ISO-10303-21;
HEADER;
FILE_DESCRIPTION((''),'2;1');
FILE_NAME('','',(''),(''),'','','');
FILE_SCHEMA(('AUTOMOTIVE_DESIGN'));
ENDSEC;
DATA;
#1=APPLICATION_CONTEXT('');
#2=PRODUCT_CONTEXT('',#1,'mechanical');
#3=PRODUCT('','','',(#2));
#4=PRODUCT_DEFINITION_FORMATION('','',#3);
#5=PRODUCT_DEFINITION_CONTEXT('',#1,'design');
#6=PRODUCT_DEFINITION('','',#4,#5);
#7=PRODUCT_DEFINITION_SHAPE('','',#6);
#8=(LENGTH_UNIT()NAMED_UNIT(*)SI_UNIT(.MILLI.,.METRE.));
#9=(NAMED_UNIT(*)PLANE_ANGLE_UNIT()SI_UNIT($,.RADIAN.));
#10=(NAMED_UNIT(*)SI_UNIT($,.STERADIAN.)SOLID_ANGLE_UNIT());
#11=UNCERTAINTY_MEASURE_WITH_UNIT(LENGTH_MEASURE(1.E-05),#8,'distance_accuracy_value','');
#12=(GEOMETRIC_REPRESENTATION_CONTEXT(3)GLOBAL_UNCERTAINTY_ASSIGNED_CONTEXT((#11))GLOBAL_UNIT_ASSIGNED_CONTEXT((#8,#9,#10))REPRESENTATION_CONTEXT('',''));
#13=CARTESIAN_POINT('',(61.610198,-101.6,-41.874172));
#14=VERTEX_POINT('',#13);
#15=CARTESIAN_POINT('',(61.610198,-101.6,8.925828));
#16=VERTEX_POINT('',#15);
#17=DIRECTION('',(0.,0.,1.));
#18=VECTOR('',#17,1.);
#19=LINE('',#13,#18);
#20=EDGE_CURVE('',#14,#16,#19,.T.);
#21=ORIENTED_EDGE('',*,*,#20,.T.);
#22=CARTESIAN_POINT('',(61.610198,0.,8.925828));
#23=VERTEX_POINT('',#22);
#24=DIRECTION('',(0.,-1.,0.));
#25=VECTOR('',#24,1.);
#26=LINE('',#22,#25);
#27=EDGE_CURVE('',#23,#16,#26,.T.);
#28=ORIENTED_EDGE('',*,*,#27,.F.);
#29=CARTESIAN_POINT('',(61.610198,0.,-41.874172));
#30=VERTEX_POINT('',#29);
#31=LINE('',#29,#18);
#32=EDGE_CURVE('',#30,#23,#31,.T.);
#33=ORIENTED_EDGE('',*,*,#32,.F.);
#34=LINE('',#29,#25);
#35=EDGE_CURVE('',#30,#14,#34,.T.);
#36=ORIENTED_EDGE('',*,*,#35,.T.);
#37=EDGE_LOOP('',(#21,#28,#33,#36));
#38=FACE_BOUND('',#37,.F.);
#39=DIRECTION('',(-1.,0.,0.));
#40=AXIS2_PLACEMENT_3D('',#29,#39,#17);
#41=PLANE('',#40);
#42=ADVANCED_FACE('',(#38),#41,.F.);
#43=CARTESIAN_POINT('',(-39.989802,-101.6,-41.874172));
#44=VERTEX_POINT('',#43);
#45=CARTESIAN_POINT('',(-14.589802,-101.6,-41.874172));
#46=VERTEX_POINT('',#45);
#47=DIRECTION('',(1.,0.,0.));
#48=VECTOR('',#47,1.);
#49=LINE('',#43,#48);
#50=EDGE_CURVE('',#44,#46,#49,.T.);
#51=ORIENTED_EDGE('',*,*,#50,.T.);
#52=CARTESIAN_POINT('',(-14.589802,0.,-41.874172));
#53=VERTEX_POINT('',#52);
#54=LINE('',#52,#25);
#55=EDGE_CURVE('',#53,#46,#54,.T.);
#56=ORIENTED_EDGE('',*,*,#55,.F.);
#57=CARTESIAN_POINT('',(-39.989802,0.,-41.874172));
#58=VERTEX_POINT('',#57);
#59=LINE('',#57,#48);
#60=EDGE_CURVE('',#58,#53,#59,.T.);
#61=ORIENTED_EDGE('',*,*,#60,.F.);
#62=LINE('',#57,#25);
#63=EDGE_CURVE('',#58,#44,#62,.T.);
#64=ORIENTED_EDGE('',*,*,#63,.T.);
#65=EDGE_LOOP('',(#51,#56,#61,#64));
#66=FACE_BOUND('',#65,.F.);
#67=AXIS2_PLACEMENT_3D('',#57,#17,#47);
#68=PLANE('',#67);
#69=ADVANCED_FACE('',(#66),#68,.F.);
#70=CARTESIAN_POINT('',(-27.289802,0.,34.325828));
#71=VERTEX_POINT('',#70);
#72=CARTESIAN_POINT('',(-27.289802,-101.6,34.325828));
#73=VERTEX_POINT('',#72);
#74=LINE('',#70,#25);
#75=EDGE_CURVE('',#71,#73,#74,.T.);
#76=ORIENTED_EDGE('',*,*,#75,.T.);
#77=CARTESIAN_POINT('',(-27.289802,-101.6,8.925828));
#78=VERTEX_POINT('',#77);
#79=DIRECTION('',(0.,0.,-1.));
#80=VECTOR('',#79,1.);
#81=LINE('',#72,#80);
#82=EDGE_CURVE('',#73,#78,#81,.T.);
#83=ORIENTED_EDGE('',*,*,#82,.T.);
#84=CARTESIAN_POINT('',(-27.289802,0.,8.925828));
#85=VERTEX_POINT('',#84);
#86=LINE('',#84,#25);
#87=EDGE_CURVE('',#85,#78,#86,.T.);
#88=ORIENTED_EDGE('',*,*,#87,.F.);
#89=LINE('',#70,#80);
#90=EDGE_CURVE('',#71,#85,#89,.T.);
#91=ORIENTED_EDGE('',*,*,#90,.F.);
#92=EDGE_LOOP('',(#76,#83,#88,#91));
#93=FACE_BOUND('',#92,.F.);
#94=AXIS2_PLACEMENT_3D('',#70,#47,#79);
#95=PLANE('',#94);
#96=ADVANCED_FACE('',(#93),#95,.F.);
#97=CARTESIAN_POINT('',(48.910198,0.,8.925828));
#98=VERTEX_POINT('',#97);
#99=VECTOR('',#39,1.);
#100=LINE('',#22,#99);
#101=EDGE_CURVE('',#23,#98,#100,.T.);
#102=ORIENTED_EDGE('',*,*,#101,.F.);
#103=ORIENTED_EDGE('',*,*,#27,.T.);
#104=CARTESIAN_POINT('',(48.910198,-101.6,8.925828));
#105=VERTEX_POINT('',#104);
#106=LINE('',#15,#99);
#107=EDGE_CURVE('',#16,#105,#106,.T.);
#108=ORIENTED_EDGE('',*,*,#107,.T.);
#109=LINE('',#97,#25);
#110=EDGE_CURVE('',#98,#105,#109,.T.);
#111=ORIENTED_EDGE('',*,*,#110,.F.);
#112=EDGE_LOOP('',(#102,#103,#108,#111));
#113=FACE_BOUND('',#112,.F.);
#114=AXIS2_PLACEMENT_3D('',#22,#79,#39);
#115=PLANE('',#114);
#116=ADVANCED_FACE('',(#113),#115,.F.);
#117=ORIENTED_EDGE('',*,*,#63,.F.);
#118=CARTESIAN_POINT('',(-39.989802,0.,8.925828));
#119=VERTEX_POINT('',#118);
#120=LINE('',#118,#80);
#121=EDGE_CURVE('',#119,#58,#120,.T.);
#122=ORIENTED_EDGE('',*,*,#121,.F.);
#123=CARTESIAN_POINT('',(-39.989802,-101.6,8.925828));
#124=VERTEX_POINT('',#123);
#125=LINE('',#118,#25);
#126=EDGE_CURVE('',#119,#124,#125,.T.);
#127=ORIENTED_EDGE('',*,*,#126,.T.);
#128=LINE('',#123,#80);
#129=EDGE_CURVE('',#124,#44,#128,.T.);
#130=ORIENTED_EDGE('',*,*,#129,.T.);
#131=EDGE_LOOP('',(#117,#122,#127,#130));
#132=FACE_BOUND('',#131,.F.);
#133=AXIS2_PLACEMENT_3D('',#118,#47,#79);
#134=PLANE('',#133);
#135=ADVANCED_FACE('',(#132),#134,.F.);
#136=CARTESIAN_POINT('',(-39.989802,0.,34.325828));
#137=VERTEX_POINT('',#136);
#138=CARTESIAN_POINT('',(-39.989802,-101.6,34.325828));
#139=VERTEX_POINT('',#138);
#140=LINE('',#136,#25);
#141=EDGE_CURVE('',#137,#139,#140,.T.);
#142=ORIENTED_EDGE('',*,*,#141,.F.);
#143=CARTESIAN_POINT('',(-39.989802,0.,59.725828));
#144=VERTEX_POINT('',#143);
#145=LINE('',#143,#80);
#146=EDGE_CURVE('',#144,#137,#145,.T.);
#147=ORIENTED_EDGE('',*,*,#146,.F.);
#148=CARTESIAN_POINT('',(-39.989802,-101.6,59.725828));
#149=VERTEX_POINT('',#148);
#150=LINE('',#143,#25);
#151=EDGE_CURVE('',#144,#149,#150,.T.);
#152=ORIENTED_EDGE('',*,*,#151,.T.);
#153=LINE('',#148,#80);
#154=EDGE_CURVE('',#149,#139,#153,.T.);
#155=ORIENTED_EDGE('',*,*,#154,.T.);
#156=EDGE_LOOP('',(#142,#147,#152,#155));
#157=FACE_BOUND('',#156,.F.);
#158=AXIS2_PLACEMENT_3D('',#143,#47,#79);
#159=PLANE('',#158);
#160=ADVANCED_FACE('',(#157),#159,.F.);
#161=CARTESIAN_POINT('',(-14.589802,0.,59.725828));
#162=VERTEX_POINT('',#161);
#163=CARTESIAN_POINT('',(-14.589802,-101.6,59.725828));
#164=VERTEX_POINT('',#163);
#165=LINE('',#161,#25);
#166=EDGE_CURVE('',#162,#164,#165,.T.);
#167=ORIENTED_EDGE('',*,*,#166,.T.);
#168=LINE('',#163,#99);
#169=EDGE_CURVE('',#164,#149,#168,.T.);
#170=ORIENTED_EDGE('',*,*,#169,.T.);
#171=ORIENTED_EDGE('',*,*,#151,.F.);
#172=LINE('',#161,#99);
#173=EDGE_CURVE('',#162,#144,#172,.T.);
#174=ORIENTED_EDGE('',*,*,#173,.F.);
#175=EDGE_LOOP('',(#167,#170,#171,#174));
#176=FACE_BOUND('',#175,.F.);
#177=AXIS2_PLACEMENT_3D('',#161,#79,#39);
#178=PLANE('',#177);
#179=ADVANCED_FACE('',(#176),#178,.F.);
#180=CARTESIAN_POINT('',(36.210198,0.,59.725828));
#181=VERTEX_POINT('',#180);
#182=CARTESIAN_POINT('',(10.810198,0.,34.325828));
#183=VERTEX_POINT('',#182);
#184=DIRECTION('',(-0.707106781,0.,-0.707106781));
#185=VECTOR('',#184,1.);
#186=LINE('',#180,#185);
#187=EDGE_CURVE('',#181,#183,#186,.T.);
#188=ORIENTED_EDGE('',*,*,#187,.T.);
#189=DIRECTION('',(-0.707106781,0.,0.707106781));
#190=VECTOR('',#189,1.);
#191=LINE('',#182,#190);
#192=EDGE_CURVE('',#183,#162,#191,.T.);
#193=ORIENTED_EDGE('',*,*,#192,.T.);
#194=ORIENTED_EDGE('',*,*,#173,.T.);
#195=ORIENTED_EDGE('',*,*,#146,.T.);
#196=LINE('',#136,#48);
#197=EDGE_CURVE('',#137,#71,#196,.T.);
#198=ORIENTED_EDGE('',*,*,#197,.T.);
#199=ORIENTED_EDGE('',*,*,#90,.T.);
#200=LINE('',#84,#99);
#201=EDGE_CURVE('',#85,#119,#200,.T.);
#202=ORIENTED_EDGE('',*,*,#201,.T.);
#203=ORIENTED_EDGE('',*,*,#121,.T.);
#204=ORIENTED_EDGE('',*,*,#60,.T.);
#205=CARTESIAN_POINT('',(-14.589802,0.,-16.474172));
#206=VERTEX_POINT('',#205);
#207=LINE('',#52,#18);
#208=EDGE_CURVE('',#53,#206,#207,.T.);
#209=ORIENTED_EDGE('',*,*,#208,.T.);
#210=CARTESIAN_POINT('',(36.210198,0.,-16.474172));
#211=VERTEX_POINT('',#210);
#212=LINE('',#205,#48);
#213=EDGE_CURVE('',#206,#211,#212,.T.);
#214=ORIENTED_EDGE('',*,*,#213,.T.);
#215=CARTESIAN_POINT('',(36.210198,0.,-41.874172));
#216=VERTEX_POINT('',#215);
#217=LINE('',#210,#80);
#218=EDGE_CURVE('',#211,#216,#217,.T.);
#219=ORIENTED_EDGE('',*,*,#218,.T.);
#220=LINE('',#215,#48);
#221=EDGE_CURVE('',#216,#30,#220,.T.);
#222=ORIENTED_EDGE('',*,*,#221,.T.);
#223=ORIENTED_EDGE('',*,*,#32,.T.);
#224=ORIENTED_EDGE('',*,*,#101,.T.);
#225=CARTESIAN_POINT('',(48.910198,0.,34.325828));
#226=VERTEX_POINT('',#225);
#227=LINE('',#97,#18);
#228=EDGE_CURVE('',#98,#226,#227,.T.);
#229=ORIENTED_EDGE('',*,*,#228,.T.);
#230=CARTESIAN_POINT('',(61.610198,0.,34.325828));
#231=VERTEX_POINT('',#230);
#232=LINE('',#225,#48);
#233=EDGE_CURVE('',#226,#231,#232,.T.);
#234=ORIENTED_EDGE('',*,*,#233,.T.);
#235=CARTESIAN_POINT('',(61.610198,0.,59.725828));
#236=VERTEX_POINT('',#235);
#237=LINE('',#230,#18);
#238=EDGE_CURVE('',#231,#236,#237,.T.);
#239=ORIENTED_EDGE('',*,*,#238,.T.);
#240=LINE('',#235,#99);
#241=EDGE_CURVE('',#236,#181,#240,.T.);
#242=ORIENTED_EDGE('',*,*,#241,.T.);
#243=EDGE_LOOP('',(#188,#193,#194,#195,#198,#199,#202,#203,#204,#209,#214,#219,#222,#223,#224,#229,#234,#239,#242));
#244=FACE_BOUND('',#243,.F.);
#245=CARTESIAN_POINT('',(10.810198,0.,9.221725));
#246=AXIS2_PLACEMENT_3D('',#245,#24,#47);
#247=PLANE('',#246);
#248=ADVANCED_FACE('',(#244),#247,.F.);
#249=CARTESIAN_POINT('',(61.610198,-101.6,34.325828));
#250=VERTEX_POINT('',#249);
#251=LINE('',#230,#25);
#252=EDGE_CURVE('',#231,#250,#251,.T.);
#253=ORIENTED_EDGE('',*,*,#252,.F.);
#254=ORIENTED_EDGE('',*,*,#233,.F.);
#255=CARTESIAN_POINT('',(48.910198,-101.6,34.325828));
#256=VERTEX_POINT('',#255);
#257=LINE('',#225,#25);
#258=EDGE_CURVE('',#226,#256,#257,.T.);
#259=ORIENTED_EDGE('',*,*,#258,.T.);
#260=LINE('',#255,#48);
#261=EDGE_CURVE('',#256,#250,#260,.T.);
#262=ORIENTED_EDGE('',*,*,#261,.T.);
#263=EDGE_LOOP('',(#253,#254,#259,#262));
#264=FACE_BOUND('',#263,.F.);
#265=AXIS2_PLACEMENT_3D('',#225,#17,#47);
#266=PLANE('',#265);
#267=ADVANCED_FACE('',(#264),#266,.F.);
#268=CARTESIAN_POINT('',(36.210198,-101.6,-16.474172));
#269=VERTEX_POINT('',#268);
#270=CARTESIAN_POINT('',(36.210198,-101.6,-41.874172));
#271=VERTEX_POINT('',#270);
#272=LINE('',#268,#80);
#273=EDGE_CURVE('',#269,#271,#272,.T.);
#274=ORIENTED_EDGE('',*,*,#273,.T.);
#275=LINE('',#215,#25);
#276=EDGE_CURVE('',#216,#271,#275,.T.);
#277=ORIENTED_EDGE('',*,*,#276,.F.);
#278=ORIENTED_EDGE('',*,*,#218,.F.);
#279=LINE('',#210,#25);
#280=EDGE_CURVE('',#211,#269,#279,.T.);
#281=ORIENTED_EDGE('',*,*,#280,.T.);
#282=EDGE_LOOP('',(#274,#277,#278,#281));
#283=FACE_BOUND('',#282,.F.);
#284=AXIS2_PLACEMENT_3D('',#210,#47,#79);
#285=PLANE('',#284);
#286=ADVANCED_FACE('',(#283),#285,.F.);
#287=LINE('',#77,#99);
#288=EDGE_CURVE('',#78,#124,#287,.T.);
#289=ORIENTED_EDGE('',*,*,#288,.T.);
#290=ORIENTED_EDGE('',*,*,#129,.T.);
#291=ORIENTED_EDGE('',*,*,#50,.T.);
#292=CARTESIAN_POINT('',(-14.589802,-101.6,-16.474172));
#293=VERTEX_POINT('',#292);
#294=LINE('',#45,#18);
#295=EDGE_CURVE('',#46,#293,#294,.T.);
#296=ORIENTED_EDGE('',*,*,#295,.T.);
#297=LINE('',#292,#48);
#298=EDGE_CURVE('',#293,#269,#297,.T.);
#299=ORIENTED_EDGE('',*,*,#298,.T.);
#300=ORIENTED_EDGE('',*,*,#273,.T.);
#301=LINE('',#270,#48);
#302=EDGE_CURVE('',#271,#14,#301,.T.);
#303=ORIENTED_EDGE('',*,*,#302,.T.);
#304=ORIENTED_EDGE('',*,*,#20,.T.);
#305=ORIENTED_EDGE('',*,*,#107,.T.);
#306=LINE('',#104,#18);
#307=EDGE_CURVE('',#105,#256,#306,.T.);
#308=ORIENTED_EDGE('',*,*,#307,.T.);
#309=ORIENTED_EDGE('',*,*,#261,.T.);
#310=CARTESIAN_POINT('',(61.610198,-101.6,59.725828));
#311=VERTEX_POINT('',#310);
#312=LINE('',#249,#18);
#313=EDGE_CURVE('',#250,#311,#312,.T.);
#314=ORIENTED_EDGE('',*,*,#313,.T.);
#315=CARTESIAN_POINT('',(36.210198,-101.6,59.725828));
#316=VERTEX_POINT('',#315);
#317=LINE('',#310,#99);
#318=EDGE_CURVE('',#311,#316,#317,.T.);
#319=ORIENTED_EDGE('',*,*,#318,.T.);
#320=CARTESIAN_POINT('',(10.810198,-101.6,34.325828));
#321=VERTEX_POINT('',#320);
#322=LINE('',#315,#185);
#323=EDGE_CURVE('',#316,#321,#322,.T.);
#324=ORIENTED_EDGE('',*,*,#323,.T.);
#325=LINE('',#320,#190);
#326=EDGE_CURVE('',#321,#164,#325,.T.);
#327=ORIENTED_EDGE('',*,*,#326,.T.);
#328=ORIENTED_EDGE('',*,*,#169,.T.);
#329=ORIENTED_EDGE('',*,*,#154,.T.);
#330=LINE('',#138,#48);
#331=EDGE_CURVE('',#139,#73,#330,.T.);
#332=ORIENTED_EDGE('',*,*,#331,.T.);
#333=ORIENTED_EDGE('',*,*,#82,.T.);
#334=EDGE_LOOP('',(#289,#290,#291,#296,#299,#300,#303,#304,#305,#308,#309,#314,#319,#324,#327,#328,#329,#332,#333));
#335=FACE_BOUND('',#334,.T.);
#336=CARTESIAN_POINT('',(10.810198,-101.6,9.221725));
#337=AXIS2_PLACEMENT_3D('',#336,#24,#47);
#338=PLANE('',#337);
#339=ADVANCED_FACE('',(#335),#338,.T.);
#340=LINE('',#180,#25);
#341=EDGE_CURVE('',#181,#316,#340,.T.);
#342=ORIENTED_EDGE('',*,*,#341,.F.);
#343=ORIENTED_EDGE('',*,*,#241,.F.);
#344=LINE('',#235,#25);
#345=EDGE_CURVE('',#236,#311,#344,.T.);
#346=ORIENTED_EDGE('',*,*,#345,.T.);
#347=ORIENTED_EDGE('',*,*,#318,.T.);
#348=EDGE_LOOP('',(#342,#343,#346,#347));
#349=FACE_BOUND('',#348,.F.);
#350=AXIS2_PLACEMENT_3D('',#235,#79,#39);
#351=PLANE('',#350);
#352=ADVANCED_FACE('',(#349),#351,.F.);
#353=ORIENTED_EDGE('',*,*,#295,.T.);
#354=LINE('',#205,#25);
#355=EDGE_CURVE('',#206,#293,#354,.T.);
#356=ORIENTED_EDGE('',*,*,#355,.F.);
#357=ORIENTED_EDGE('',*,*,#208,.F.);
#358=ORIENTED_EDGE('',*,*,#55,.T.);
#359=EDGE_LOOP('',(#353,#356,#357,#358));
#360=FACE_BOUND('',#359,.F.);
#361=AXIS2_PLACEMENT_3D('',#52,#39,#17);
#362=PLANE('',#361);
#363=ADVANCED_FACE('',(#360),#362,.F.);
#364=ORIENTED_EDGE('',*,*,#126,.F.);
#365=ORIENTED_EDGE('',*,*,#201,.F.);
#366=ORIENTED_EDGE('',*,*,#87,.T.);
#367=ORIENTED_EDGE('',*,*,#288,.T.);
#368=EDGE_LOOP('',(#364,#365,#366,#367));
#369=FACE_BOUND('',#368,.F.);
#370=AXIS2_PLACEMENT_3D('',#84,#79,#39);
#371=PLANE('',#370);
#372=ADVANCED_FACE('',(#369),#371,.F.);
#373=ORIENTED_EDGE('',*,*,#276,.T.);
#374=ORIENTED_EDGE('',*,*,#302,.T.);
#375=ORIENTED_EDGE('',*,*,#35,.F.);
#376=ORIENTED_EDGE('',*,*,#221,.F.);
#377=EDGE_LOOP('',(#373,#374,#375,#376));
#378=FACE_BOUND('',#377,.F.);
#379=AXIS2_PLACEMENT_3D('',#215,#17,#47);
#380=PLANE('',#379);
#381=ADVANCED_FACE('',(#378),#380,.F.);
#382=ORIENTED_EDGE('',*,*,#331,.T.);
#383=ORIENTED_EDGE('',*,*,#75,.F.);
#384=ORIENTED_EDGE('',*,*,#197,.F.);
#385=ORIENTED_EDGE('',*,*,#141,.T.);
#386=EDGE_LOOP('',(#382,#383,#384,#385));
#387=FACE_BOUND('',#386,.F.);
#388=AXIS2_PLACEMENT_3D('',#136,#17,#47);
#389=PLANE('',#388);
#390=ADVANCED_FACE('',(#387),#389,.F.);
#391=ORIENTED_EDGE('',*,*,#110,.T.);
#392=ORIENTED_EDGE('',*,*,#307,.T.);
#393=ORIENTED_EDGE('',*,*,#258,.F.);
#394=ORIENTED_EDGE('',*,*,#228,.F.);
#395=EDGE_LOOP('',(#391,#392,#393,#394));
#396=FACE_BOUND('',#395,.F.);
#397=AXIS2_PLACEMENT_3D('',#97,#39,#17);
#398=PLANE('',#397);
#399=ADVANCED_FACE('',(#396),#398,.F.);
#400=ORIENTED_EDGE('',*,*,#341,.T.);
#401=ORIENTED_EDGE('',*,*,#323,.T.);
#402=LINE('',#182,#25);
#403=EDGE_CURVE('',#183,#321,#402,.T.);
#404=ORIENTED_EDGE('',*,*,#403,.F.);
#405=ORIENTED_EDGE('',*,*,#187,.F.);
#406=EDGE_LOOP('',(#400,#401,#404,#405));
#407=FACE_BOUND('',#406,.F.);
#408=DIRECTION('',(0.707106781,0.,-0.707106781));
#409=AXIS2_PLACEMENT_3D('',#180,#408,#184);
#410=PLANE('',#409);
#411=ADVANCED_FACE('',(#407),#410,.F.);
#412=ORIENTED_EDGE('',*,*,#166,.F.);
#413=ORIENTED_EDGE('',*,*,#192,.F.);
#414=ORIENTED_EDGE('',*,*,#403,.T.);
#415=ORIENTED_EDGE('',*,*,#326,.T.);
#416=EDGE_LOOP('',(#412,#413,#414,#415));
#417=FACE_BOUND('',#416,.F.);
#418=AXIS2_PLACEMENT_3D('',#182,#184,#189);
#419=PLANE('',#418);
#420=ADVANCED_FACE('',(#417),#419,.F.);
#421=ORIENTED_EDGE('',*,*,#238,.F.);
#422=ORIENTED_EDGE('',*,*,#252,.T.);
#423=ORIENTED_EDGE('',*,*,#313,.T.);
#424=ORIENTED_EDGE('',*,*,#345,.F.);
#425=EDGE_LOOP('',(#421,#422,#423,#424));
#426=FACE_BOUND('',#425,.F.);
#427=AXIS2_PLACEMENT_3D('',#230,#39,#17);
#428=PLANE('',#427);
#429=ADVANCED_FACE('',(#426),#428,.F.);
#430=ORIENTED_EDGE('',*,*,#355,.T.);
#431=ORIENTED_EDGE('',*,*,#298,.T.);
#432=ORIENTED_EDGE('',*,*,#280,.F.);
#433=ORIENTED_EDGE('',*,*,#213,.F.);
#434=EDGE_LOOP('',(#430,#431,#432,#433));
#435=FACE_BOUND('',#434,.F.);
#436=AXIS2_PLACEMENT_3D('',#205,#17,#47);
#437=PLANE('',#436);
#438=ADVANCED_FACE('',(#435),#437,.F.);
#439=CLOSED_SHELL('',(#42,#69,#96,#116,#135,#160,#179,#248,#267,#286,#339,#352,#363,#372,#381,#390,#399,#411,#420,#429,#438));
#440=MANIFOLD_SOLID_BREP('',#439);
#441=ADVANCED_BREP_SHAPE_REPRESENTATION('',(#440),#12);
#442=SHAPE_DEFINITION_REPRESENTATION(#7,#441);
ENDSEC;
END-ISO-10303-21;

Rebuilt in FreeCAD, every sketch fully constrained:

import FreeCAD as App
import Part
import Sketcher

V = App.Vector
Q = App.Units.Quantity


def add_polygon(sketch, points):
    """Adds a closed chain of lines whose ends are joined by coincident constraints."""
    first, n = sketch.GeometryCount, len(points)
    for a, b in zip(points, points[1:] + points[:1]):
        sketch.addGeometry(Part.LineSegment(App.Vector(*a, 0), App.Vector(*b, 0)), False)
    for i in range(n):
        sketch.addConstraint(Sketcher.Constraint("Coincident", first + i, 2, first + (i + 1) % n, 1))

doc = App.newDocument("Part")
params = doc.addObject("Spreadsheet::Sheet", "Params")
for row, (alias, value) in enumerate([
    ("sketch1_width", "1 in"),
    ("sketch1_width2", "0.5 in"),
    ("pad1_length", "4 in"),
], start=1):
    params.set(f"A{row}", alias)
    params.set(f"B{row}", "=" + value)
    params.setAlias(f"B{row}", alias)

body = doc.addObject("PartDesign::Body", "Body")

# Sketch on XZ plane
sketch1 = body.newObject("Sketcher::SketchObject", "Sketch")
sketch1.AttachmentSupport = (doc.getObject("XZ_Plane"), [""])
sketch1.MapMode = "FlatFace"
add_polygon(sketch1, [(-40, 9), (-40, -42), (-15, -42), (-15, -16), (36, -16), (36, -42), (62, -42), (62, 9), (49, 9), (49, 34), (62, 34), (62, 60), (36, 60), (11, 34), (-15, 60), (-40, 60), (-40, 34), (-27, 34), (-27, 9)])  # lines 0-18
sketch1.addConstraint(Sketcher.Constraint("Vertical", 0))
sketch1.addConstraint(Sketcher.Constraint("Horizontal", 1))
sketch1.addConstraint(Sketcher.Constraint("Vertical", 2))
sketch1.addConstraint(Sketcher.Constraint("Horizontal", 3))
sketch1.addConstraint(Sketcher.Constraint("Vertical", 4))
sketch1.addConstraint(Sketcher.Constraint("Horizontal", 5))
sketch1.addConstraint(Sketcher.Constraint("Vertical", 6))
sketch1.addConstraint(Sketcher.Constraint("Horizontal", 7))
sketch1.addConstraint(Sketcher.Constraint("Vertical", 8))
sketch1.addConstraint(Sketcher.Constraint("Horizontal", 9))
sketch1.addConstraint(Sketcher.Constraint("Vertical", 10))
sketch1.addConstraint(Sketcher.Constraint("Horizontal", 11))
sketch1.addConstraint(Sketcher.Constraint("Horizontal", 14))
sketch1.addConstraint(Sketcher.Constraint("Vertical", 15))
sketch1.addConstraint(Sketcher.Constraint("Horizontal", 16))
sketch1.addConstraint(Sketcher.Constraint("Vertical", 17))
sketch1.addConstraint(Sketcher.Constraint("Horizontal", 18))
sketch1.addConstraint(Sketcher.Constraint("Perpendicular", 12, 13))
sketch1.addConstraint(Sketcher.Constraint("Horizontal", 1, 2, 4, 2))
sketch1.addConstraint(Sketcher.Constraint("Horizontal", 9, 2, 12, 2))
sketch1.addConstraint(Sketcher.Constraint("Horizontal", 11, 2, 13, 2))
sketch1.addConstraint(Sketcher.Constraint("Horizontal", 12, 2, 15, 2))
sketch1.addConstraint(Sketcher.Constraint("Horizontal", 7, 2, 17, 2))
sketch1.addConstraint(Sketcher.Constraint("Vertical", 6, 2, 9, 2))
sketch1.addConstraint(Sketcher.Constraint("Vertical", 4, 2, 11, 2))
sketch1.addConstraint(Sketcher.Constraint("Vertical", 2, 2, 13, 2))
sketch1.addConstraint(Sketcher.Constraint("Vertical", 0, 2, 14, 2))
sketch1.addConstraint(Sketcher.Constraint("Equal", 1, 5))
sketch1.addConstraint(Sketcher.Constraint("Equal", 9, 16))
sketch1.addConstraint(Sketcher.Constraint("Equal", 3, 0))
sketch1.addConstraint(Sketcher.Constraint("Equal", 14, 2))
sketch1.addConstraint(Sketcher.Constraint("Equal", 4, 8))
sketch1.addConstraint(Sketcher.Constraint("Equal", 8, 10))
sketch1.addConstraint(Sketcher.Constraint("Equal", 12, 13))
sketch1.addConstraint(Sketcher.Constraint("DistanceX", 1, 1, 1, 2, Q("1 in")))
sketch1.addConstraint(Sketcher.Constraint("DistanceX", 7, 2, 7, 1, Q("0.5 in")))
sketch1.addConstraint(Sketcher.Constraint("DistanceX", 0, 2, -1, 1, Q("39.989802 mm")))
sketch1.addConstraint(Sketcher.Constraint("DistanceY", 2, 2, -1, 1, Q("16.474172 mm")))
sketch1.setExpression("Constraints[53]", "Params.sketch1_width")
sketch1.setExpression("Constraints[54]", "Params.sketch1_width2")
pad1 = body.newObject("PartDesign::Pad", "Pad")
pad1.Profile = sketch1
pad1.setExpression("Length", "Params.pad1_length")

doc.recompute()
